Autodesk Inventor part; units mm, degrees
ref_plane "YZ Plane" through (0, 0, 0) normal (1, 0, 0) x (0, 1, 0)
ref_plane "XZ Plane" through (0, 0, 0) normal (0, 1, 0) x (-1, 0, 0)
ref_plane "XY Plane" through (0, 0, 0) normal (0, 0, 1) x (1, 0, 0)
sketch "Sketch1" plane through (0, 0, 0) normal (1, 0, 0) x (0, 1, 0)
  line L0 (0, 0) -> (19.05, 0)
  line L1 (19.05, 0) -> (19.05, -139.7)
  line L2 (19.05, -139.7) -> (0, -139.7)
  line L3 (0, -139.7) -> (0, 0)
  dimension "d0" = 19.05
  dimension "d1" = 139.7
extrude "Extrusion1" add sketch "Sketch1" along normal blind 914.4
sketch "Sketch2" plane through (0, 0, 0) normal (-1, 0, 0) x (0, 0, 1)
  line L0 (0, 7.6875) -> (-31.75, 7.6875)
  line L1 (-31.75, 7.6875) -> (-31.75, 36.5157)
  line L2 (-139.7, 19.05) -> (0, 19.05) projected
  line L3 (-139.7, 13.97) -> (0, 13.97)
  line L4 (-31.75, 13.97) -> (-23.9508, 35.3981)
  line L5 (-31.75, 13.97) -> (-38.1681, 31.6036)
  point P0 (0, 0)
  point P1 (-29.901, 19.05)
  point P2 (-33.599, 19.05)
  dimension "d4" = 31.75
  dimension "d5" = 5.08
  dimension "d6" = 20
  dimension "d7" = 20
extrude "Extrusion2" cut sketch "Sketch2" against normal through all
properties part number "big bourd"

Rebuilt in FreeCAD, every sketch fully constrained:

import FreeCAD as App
import Part
import Sketcher
from FreeCAD import Vector
Q = App.Units.Quantity


def add_polygon(sketch, points):
    """Adds a closed chain of lines whose ends are joined by coincident constraints."""
    first, n = sketch.GeometryCount, len(points)
    for a, b in zip(points, points[1:] + points[:1]):
        sketch.addGeometry(Part.LineSegment(App.Vector(*a, 0), App.Vector(*b, 0)), False)
    for i in range(n):
        sketch.addConstraint(Sketcher.Constraint("Coincident", first + i, 2, first + (i + 1) % n, 1))

doc = App.newDocument("Part")
params = doc.addObject("Spreadsheet::Sheet", "Params")
for row, (alias, value) in enumerate([
    ("sketch1_height", "5.5 in"),
    ("sketch1_width", "0.75 in"),
    ("pad1_length", "36 in"),
], start=1):
    params.set(f"A{row}", alias)
    params.set(f"B{row}", "=" + value)
    params.setAlias(f"B{row}", alias)

body = doc.addObject("PartDesign::Body", "Body")

sketch1 = body.newObject("Sketcher::SketchObject", "Sketch")
sketch1.AttachmentSupport = (doc.getObject("YZ_Plane"), [""])
sketch1.MapMode = "FlatFace"
add_polygon(sketch1, [(19, 0), (0, 0), (0, -140), (19, -140)])
sketch1.addConstraint([
    Sketcher.Constraint("Horizontal", 0),
    Sketcher.Constraint("Vertical", 1),
    Sketcher.Constraint("Horizontal", 2),
    Sketcher.Constraint("Vertical", 3),
    Sketcher.Constraint("Coincident", 0, 2, -1, 1),
    Sketcher.Constraint("DistanceY", 1, 2, 1, 1, Q("5.5 in")),
    Sketcher.Constraint("DistanceX", 0, 2, 0, 1, Q("0.75 in")),
])
sketch1.setExpression("Constraints[9]", "Params.sketch1_height")
sketch1.setExpression("Constraints[10]", "Params.sketch1_width")
pad1 = body.newObject("PartDesign::Pad", "Pad")
pad1.Profile = sketch1
pad1.setExpression("Length", "Params.pad1_length")

sketch2 = body.newObject("Sketcher::SketchObject", "Sketch001")
sketch2.AttachmentSupport = (doc.getObject("YZ_Plane"), [""])
sketch2.MapMode = "FlatFace"
add_polygon(sketch2, [(19.1, -33.6), (14, -31.8), (19.1, -29.9)])
sketch2.addConstraint([
    Sketcher.Constraint("Vertical", 2),
    Sketcher.Constraint("Equal", 0, 1),
    Sketcher.Constraint("Angle", 1, Q("20 deg")),
    Sketcher.Constraint("DistanceX", 0, 2, 1, 2, Q("0.2 in")),
    Sketcher.Constraint("DistanceY", 0, 2, -1, 1, Q("1.25 in")),
    Sketcher.Constraint("DistanceX", -1, 1, 0, 2, Q("0.55 in")),
])
pocket1 = body.newObject("PartDesign::Pocket", "Pocket")
pocket1.Profile = sketch2
pocket1.Type = "ThroughAll"
pocket1.Reversed = True

doc.recompute()
